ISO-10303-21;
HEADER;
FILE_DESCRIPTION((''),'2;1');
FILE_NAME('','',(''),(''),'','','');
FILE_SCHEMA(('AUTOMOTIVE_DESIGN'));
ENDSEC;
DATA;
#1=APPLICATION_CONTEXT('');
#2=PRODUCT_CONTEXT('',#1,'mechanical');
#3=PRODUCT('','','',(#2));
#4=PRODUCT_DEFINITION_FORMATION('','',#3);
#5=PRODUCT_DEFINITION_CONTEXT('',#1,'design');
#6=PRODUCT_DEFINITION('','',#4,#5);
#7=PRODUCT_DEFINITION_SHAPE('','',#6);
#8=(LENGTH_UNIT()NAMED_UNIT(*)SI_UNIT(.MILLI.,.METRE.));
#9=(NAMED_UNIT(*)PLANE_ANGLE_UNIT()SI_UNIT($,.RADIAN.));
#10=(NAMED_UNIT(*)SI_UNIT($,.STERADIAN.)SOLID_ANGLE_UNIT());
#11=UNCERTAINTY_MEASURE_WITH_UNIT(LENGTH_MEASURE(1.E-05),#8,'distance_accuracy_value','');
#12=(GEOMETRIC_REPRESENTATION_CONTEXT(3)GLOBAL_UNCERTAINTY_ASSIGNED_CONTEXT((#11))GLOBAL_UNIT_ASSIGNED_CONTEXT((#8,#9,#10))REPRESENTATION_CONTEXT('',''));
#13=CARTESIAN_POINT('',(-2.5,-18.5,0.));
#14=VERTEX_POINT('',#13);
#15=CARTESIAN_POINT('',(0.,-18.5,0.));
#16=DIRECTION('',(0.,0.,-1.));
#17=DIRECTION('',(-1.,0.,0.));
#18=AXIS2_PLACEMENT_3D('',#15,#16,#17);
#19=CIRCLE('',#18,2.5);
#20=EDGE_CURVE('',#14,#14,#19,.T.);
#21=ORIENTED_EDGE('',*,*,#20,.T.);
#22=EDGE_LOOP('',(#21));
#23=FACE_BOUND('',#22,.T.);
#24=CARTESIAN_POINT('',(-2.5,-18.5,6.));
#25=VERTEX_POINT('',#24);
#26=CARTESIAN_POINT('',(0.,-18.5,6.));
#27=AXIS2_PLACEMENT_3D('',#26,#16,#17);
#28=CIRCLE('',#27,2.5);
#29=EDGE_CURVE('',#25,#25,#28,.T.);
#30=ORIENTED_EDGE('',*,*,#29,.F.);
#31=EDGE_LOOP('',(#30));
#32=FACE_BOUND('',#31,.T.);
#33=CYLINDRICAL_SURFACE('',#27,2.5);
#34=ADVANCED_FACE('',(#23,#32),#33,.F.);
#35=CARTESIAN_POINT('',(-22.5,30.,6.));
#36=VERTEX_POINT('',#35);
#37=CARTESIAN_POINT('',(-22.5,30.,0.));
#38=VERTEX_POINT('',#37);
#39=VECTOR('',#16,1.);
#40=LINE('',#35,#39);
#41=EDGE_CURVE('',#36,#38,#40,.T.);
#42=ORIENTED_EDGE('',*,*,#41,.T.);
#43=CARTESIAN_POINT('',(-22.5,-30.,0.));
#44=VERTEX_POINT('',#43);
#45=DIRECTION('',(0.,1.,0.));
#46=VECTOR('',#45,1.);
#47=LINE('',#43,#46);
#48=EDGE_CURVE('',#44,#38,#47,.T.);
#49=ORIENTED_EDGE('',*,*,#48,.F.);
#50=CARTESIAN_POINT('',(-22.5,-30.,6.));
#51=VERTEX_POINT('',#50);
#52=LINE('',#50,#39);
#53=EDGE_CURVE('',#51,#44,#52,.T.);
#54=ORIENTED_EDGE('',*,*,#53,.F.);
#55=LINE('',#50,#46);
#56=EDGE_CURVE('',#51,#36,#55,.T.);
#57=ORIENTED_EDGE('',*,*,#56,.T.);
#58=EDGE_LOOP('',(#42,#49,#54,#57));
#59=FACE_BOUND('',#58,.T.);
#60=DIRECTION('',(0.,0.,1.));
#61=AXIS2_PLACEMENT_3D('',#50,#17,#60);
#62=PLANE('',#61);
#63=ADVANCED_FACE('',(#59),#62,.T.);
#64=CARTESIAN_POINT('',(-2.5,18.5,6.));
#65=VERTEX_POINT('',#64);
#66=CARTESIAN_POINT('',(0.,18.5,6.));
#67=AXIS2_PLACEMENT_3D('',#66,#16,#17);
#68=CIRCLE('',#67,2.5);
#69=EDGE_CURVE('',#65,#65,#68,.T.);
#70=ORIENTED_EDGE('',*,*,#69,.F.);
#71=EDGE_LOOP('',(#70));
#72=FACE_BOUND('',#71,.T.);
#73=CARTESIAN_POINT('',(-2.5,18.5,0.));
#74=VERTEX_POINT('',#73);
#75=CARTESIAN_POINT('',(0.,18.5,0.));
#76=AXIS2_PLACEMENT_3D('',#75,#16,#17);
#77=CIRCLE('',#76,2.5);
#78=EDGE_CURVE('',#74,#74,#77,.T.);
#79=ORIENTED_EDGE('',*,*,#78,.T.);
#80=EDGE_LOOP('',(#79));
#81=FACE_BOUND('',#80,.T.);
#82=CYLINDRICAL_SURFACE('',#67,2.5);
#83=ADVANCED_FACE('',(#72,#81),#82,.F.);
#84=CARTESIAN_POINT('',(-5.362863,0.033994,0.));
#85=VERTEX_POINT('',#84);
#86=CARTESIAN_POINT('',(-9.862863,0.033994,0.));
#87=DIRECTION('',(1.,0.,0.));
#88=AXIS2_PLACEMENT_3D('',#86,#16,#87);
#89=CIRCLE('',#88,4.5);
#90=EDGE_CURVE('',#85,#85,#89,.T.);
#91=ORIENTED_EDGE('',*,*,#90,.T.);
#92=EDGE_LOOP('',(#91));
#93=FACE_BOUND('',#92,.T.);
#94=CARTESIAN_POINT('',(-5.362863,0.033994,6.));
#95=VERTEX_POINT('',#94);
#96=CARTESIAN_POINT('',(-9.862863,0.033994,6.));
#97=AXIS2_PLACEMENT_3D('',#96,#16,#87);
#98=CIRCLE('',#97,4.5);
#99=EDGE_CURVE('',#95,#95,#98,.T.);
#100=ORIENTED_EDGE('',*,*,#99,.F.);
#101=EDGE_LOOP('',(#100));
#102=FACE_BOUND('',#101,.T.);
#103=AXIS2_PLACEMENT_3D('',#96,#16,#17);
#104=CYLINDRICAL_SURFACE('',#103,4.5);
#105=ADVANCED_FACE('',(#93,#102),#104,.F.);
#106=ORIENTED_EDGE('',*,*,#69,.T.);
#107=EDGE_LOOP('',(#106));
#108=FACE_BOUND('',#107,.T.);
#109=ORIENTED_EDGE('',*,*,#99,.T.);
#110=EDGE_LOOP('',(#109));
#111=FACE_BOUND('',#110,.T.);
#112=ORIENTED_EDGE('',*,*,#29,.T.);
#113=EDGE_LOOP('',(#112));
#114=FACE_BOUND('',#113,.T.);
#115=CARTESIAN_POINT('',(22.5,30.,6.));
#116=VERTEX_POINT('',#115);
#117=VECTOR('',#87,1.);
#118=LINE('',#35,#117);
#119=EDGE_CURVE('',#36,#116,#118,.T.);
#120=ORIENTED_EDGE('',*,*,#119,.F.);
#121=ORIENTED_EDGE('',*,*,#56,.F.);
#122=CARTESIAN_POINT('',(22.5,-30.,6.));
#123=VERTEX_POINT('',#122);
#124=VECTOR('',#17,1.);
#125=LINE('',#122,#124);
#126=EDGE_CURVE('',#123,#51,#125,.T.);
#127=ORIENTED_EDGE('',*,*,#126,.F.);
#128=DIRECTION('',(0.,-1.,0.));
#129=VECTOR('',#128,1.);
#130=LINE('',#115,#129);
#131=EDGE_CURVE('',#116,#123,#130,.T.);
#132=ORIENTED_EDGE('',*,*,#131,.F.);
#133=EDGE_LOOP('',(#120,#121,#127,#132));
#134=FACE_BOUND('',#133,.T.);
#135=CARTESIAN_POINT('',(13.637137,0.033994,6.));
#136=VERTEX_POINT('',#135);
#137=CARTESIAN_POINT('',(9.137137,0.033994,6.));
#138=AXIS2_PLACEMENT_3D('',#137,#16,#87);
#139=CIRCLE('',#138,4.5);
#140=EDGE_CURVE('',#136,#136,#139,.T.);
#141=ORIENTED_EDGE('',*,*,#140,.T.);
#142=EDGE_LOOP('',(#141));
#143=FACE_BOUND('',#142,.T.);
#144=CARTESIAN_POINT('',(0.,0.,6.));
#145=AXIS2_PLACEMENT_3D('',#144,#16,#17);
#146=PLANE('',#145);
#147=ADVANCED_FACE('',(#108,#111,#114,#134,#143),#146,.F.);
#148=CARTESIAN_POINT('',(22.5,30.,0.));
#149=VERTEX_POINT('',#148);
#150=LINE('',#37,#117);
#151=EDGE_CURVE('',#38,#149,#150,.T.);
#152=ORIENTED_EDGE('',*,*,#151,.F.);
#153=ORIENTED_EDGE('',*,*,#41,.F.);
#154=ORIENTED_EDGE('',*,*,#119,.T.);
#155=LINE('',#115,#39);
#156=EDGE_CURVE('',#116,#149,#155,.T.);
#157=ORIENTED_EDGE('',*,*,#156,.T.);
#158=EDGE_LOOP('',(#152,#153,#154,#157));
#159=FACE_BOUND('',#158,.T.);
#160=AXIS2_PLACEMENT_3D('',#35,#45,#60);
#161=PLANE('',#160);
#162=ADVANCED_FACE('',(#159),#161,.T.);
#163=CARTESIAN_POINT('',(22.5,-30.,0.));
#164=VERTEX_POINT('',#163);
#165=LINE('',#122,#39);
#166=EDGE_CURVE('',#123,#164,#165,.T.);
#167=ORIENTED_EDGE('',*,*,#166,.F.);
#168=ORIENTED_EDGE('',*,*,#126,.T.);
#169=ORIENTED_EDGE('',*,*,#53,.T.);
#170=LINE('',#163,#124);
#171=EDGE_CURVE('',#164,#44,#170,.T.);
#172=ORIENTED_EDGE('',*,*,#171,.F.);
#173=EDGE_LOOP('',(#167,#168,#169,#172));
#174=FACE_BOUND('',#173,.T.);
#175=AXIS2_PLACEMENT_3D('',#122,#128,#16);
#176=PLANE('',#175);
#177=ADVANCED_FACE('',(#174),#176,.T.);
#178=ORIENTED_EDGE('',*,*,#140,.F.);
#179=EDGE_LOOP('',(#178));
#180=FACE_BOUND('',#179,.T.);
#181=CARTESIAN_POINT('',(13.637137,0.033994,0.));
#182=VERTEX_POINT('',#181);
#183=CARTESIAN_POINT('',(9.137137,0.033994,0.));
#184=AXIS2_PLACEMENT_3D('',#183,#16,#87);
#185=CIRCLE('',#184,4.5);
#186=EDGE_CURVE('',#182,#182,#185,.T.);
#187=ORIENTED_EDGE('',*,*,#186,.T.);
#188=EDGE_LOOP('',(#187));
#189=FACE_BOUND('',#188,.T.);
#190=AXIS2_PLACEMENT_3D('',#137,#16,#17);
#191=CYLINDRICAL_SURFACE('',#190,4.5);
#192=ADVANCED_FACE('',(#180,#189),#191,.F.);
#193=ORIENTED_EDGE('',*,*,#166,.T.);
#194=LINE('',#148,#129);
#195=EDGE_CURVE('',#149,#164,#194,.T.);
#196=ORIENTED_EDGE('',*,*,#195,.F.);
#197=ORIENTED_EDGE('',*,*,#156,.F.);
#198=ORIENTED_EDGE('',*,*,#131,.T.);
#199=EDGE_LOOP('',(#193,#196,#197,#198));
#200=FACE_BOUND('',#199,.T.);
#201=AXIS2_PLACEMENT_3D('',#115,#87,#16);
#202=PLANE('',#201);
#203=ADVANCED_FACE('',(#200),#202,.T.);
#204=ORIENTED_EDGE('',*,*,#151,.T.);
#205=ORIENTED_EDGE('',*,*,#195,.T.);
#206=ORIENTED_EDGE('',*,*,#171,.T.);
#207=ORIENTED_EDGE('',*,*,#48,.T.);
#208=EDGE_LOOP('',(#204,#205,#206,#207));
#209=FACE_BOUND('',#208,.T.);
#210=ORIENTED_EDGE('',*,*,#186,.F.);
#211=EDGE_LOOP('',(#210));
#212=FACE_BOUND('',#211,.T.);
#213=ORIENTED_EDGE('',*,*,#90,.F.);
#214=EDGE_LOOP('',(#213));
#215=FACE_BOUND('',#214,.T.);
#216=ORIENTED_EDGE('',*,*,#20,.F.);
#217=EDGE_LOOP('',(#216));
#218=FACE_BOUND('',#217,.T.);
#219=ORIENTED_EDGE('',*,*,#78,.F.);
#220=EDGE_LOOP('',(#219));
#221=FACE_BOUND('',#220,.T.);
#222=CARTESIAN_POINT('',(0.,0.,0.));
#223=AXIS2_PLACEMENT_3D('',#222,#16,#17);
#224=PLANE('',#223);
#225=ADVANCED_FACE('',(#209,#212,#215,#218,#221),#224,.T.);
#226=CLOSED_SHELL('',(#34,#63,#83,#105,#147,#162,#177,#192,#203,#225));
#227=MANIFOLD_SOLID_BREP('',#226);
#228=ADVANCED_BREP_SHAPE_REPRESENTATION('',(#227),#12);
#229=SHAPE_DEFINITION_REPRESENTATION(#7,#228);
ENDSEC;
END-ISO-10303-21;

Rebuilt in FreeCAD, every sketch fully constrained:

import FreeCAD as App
import Part
import Sketcher
Q = App.Units.Quantity

doc = App.newDocument("Part")
body = doc.addObject("PartDesign::Body", "Body")

# Sketch on XY plane
sketch1 = body.newObject("Sketcher::SketchObject", "Sketch")
sketch1.AttachmentSupport = (doc.getObject("XY_Plane"), [""])
sketch1.MapMode = "FlatFace"
sketch1.addGeometry([
    Part.LineSegment(App.Vector(22.5, 30, 0), App.Vector(22.5, -30, 0)),  # 0
    Part.LineSegment(App.Vector(22.5, -30, 0), App.Vector(-22.5, -30, 0)),  # 1
    Part.LineSegment(App.Vector(-22.5, -30, 0), App.Vector(-22.5, 30, 0)),  # 2
    Part.LineSegment(App.Vector(-22.5, 30, 0), App.Vector(22.5, 30, 0)),  # 3
    Part.Circle(App.Vector(0, -18.5, 0), App.Vector(0, 0, 1), 2.5),  # 4
    Part.Circle(App.Vector(9.137137, 0.033994, 0), App.Vector(0, 0, 1), 4.5),  # 5
    Part.Circle(App.Vector(0, 18.5, 0), App.Vector(0, 0, 1), 2.5),  # 6
    Part.Circle(App.Vector(-9.862863, 0.033994, 0), App.Vector(0, 0, 1), 4.5),  # 7
], False)
sketch1.addConstraint([
    Sketcher.Constraint("Coincident", 0, 2, 1, 1),
    Sketcher.Constraint("Coincident", 1, 2, 2, 1),
    Sketcher.Constraint("Coincident", 2, 2, 3, 1),
    Sketcher.Constraint("Coincident", 3, 2, 0, 1),
    Sketcher.Constraint("Vertical", 0),
    Sketcher.Constraint("Horizontal", 1),
    Sketcher.Constraint("Vertical", 2),
    Sketcher.Constraint("Horizontal", 3),
    Sketcher.Constraint("Equal", 4, 6),
    Sketcher.Constraint("Equal", 5, 7),
    Sketcher.Constraint("Symmetric", 4, 3, 6, 3, -1, 1),
    Sketcher.Constraint("Symmetric", 0, 2, 2, 2, -1, 1),
    Sketcher.Constraint("PointOnObject", 4, 3, -2),
    Sketcher.Constraint("Horizontal", 5, 3, 7, 3),
    Sketcher.Constraint("Diameter", 4, Q("5 mm")),
    Sketcher.Constraint("Diameter", 5, Q("9 mm")),
    Sketcher.Constraint("DistanceX", 1, 2, 1, 1, Q("45 mm")),
    Sketcher.Constraint("DistanceY", 0, 2, 0, 1, Q("60 mm")),
    Sketcher.Constraint("DistanceY", 4, 3, 6, 3, Q("37 mm")),
    Sketcher.Constraint("DistanceX", 7, 3, 5, 3, Q("19 mm")),
    Sketcher.Constraint("DistanceX", -1, 1, 5, 3, Q("9.137137 mm")),
    Sketcher.Constraint("DistanceY", -1, 1, 5, 3, Q("0.033994 mm")),
])
pad1 = body.newObject("PartDesign::Pad", "Pad")
pad1.Profile = sketch1
pad1.Length = 6

doc.recompute()
